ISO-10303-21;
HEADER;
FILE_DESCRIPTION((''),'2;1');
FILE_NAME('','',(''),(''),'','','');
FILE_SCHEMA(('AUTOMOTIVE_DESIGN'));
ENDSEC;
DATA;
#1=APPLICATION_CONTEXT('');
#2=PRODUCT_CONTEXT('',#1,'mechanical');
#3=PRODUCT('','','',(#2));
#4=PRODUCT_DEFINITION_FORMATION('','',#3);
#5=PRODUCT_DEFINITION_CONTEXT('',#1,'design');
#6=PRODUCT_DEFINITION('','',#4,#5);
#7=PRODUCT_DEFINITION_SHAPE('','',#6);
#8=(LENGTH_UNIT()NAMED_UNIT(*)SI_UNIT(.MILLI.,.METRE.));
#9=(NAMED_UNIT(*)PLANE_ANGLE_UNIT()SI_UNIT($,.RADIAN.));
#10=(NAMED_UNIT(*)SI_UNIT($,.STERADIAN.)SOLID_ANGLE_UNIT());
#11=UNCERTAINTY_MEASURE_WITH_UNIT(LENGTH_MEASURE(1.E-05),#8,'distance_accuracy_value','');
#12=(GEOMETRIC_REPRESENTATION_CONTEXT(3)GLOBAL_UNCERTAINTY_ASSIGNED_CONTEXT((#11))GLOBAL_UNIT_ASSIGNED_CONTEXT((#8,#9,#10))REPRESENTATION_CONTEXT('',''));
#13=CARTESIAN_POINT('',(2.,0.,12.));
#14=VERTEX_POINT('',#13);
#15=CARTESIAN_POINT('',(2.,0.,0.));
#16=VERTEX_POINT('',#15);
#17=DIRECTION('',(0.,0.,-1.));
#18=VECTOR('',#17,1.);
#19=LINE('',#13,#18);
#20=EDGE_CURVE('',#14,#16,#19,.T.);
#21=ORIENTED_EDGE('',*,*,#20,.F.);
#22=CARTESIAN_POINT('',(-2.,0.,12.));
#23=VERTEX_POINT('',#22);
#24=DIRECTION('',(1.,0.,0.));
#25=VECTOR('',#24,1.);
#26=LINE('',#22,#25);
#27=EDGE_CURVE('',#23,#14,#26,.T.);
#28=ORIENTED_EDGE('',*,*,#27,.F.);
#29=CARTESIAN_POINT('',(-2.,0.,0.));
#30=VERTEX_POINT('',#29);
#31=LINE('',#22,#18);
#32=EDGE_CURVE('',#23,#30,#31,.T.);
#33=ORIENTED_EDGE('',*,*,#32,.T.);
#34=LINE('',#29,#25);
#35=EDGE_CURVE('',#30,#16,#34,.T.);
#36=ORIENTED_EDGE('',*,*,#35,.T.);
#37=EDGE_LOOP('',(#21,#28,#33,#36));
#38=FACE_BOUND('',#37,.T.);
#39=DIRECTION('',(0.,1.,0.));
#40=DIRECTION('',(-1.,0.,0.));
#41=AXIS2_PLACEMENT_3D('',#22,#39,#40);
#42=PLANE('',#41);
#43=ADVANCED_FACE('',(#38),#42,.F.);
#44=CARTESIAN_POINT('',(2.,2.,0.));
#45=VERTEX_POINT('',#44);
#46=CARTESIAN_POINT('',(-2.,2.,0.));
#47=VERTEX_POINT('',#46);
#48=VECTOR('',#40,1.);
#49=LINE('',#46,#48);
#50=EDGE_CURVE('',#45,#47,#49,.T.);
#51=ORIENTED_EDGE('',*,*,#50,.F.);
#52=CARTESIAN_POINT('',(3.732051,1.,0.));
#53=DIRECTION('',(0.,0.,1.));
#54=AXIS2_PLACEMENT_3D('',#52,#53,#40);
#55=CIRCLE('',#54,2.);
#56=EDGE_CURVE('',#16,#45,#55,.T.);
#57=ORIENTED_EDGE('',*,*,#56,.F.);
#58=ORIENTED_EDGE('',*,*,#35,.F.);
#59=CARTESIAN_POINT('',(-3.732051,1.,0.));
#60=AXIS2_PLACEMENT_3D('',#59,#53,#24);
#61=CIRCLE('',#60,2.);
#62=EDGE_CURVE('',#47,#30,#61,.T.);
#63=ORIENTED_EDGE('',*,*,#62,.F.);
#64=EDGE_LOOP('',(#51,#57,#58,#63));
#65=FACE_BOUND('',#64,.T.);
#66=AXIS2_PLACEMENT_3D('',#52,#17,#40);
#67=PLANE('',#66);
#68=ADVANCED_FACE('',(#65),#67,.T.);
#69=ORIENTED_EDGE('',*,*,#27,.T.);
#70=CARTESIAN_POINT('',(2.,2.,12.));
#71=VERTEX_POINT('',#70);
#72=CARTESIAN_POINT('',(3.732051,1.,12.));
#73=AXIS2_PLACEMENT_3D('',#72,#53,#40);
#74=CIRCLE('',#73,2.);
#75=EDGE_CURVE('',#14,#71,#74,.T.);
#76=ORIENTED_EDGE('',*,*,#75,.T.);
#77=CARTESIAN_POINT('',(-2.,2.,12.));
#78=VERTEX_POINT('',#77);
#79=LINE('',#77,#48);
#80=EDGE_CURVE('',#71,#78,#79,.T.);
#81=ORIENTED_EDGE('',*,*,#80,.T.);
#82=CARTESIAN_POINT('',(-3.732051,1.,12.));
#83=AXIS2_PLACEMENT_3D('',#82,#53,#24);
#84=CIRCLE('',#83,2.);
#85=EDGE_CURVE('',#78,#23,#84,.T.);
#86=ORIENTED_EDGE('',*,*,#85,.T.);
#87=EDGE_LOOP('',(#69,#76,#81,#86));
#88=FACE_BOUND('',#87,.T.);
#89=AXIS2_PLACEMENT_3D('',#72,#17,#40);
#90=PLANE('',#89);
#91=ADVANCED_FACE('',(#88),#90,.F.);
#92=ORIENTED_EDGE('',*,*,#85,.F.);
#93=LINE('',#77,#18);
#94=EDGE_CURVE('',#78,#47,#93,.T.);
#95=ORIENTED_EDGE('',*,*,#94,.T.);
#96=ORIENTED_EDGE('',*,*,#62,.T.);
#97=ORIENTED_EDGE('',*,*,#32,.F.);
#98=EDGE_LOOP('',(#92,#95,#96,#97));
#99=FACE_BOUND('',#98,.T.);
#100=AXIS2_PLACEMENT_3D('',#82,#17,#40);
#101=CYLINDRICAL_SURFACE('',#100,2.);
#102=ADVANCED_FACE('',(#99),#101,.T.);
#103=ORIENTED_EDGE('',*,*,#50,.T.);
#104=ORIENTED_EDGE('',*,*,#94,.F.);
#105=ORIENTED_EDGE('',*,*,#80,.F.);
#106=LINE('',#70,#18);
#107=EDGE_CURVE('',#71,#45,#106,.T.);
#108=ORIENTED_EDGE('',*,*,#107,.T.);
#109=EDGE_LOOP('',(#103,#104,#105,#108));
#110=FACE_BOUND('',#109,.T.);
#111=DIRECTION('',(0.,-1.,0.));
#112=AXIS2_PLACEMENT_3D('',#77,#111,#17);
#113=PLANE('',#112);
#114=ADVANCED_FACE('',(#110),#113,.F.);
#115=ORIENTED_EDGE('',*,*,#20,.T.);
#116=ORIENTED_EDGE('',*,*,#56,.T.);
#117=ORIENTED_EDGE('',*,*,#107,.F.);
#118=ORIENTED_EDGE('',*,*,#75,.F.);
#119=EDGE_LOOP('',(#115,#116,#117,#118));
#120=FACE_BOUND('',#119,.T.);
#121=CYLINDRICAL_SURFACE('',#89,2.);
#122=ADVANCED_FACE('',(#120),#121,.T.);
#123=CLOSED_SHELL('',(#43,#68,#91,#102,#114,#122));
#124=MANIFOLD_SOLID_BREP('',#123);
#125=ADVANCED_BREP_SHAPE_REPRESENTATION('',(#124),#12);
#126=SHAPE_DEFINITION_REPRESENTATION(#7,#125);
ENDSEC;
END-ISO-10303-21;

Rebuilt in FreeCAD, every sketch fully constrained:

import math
import FreeCAD as App
import Part
import Sketcher

V = App.Vector
Q = App.Units.Quantity

doc = App.newDocument("Part")
body = doc.addObject("PartDesign::Body", "Body")

# Sketch on XY plane
sketch1 = doc.addObject("Sketcher::SketchObject", "Sketch")
body.addObject(sketch1)
sketch1.AttachmentSupport = (doc.XY_Plane, [""])
sketch1.MapMode = "FlatFace"
sketch1.addGeometry(Part.LineSegment(V(-2, 0, 0), V(2, 0, 0)), False)
sketch1.addGeometry(Part.ArcOfCircle(Part.Circle(V(3.7, 1, 0), V(0, 0, 1), 2), math.radians(-150), math.radians(150)), False)
sketch1.addGeometry(Part.LineSegment(V(2, 2, 0), V(-2, 2, 0)), False)
sketch1.addGeometry(Part.ArcOfCircle(Part.Circle(V(-3.7, 1, 0), V(0, 0, 1), 2), math.radians(30), math.radians(330)), False)
sketch1.addConstraint(Sketcher.Constraint("Coincident", 0, 2, 1, 1))
sketch1.addConstraint(Sketcher.Constraint("Coincident", 1, 2, 2, 1))
sketch1.addConstraint(Sketcher.Constraint("Coincident", 2, 2, 3, 1))
sketch1.addConstraint(Sketcher.Constraint("Coincident", 3, 2, 0, 1))
sketch1.addConstraint(Sketcher.Constraint("Horizontal", 0))
sketch1.addConstraint(Sketcher.Constraint("Horizontal", 2))
sketch1.addConstraint(Sketcher.Constraint("Equal", 1, 3))
sketch1.addConstraint(Sketcher.Constraint("Symmetric", 0, 2, 3, 2, -1, 1))
sketch1.addConstraint(Sketcher.Constraint("Horizontal", 1, 3, 3, 3))
sketch1.addConstraint(Sketcher.Constraint("Vertical", 0, 2, 1, 2))
sketch1.addConstraint(Sketcher.Constraint("Radius", 1, Q("2 mm")))
sketch1.addConstraint(Sketcher.Constraint("DistanceX", 0, 1, 0, 2, Q("4 mm")))
sketch1.addConstraint(Sketcher.Constraint("DistanceY", -1, 1, 1, 3, Q("1 mm")))
pad1 = doc.addObject("PartDesign::Pad", "Pad")
body.addObject(pad1)
pad1.Profile = sketch1
pad1.Length = 12

doc.recompute()
